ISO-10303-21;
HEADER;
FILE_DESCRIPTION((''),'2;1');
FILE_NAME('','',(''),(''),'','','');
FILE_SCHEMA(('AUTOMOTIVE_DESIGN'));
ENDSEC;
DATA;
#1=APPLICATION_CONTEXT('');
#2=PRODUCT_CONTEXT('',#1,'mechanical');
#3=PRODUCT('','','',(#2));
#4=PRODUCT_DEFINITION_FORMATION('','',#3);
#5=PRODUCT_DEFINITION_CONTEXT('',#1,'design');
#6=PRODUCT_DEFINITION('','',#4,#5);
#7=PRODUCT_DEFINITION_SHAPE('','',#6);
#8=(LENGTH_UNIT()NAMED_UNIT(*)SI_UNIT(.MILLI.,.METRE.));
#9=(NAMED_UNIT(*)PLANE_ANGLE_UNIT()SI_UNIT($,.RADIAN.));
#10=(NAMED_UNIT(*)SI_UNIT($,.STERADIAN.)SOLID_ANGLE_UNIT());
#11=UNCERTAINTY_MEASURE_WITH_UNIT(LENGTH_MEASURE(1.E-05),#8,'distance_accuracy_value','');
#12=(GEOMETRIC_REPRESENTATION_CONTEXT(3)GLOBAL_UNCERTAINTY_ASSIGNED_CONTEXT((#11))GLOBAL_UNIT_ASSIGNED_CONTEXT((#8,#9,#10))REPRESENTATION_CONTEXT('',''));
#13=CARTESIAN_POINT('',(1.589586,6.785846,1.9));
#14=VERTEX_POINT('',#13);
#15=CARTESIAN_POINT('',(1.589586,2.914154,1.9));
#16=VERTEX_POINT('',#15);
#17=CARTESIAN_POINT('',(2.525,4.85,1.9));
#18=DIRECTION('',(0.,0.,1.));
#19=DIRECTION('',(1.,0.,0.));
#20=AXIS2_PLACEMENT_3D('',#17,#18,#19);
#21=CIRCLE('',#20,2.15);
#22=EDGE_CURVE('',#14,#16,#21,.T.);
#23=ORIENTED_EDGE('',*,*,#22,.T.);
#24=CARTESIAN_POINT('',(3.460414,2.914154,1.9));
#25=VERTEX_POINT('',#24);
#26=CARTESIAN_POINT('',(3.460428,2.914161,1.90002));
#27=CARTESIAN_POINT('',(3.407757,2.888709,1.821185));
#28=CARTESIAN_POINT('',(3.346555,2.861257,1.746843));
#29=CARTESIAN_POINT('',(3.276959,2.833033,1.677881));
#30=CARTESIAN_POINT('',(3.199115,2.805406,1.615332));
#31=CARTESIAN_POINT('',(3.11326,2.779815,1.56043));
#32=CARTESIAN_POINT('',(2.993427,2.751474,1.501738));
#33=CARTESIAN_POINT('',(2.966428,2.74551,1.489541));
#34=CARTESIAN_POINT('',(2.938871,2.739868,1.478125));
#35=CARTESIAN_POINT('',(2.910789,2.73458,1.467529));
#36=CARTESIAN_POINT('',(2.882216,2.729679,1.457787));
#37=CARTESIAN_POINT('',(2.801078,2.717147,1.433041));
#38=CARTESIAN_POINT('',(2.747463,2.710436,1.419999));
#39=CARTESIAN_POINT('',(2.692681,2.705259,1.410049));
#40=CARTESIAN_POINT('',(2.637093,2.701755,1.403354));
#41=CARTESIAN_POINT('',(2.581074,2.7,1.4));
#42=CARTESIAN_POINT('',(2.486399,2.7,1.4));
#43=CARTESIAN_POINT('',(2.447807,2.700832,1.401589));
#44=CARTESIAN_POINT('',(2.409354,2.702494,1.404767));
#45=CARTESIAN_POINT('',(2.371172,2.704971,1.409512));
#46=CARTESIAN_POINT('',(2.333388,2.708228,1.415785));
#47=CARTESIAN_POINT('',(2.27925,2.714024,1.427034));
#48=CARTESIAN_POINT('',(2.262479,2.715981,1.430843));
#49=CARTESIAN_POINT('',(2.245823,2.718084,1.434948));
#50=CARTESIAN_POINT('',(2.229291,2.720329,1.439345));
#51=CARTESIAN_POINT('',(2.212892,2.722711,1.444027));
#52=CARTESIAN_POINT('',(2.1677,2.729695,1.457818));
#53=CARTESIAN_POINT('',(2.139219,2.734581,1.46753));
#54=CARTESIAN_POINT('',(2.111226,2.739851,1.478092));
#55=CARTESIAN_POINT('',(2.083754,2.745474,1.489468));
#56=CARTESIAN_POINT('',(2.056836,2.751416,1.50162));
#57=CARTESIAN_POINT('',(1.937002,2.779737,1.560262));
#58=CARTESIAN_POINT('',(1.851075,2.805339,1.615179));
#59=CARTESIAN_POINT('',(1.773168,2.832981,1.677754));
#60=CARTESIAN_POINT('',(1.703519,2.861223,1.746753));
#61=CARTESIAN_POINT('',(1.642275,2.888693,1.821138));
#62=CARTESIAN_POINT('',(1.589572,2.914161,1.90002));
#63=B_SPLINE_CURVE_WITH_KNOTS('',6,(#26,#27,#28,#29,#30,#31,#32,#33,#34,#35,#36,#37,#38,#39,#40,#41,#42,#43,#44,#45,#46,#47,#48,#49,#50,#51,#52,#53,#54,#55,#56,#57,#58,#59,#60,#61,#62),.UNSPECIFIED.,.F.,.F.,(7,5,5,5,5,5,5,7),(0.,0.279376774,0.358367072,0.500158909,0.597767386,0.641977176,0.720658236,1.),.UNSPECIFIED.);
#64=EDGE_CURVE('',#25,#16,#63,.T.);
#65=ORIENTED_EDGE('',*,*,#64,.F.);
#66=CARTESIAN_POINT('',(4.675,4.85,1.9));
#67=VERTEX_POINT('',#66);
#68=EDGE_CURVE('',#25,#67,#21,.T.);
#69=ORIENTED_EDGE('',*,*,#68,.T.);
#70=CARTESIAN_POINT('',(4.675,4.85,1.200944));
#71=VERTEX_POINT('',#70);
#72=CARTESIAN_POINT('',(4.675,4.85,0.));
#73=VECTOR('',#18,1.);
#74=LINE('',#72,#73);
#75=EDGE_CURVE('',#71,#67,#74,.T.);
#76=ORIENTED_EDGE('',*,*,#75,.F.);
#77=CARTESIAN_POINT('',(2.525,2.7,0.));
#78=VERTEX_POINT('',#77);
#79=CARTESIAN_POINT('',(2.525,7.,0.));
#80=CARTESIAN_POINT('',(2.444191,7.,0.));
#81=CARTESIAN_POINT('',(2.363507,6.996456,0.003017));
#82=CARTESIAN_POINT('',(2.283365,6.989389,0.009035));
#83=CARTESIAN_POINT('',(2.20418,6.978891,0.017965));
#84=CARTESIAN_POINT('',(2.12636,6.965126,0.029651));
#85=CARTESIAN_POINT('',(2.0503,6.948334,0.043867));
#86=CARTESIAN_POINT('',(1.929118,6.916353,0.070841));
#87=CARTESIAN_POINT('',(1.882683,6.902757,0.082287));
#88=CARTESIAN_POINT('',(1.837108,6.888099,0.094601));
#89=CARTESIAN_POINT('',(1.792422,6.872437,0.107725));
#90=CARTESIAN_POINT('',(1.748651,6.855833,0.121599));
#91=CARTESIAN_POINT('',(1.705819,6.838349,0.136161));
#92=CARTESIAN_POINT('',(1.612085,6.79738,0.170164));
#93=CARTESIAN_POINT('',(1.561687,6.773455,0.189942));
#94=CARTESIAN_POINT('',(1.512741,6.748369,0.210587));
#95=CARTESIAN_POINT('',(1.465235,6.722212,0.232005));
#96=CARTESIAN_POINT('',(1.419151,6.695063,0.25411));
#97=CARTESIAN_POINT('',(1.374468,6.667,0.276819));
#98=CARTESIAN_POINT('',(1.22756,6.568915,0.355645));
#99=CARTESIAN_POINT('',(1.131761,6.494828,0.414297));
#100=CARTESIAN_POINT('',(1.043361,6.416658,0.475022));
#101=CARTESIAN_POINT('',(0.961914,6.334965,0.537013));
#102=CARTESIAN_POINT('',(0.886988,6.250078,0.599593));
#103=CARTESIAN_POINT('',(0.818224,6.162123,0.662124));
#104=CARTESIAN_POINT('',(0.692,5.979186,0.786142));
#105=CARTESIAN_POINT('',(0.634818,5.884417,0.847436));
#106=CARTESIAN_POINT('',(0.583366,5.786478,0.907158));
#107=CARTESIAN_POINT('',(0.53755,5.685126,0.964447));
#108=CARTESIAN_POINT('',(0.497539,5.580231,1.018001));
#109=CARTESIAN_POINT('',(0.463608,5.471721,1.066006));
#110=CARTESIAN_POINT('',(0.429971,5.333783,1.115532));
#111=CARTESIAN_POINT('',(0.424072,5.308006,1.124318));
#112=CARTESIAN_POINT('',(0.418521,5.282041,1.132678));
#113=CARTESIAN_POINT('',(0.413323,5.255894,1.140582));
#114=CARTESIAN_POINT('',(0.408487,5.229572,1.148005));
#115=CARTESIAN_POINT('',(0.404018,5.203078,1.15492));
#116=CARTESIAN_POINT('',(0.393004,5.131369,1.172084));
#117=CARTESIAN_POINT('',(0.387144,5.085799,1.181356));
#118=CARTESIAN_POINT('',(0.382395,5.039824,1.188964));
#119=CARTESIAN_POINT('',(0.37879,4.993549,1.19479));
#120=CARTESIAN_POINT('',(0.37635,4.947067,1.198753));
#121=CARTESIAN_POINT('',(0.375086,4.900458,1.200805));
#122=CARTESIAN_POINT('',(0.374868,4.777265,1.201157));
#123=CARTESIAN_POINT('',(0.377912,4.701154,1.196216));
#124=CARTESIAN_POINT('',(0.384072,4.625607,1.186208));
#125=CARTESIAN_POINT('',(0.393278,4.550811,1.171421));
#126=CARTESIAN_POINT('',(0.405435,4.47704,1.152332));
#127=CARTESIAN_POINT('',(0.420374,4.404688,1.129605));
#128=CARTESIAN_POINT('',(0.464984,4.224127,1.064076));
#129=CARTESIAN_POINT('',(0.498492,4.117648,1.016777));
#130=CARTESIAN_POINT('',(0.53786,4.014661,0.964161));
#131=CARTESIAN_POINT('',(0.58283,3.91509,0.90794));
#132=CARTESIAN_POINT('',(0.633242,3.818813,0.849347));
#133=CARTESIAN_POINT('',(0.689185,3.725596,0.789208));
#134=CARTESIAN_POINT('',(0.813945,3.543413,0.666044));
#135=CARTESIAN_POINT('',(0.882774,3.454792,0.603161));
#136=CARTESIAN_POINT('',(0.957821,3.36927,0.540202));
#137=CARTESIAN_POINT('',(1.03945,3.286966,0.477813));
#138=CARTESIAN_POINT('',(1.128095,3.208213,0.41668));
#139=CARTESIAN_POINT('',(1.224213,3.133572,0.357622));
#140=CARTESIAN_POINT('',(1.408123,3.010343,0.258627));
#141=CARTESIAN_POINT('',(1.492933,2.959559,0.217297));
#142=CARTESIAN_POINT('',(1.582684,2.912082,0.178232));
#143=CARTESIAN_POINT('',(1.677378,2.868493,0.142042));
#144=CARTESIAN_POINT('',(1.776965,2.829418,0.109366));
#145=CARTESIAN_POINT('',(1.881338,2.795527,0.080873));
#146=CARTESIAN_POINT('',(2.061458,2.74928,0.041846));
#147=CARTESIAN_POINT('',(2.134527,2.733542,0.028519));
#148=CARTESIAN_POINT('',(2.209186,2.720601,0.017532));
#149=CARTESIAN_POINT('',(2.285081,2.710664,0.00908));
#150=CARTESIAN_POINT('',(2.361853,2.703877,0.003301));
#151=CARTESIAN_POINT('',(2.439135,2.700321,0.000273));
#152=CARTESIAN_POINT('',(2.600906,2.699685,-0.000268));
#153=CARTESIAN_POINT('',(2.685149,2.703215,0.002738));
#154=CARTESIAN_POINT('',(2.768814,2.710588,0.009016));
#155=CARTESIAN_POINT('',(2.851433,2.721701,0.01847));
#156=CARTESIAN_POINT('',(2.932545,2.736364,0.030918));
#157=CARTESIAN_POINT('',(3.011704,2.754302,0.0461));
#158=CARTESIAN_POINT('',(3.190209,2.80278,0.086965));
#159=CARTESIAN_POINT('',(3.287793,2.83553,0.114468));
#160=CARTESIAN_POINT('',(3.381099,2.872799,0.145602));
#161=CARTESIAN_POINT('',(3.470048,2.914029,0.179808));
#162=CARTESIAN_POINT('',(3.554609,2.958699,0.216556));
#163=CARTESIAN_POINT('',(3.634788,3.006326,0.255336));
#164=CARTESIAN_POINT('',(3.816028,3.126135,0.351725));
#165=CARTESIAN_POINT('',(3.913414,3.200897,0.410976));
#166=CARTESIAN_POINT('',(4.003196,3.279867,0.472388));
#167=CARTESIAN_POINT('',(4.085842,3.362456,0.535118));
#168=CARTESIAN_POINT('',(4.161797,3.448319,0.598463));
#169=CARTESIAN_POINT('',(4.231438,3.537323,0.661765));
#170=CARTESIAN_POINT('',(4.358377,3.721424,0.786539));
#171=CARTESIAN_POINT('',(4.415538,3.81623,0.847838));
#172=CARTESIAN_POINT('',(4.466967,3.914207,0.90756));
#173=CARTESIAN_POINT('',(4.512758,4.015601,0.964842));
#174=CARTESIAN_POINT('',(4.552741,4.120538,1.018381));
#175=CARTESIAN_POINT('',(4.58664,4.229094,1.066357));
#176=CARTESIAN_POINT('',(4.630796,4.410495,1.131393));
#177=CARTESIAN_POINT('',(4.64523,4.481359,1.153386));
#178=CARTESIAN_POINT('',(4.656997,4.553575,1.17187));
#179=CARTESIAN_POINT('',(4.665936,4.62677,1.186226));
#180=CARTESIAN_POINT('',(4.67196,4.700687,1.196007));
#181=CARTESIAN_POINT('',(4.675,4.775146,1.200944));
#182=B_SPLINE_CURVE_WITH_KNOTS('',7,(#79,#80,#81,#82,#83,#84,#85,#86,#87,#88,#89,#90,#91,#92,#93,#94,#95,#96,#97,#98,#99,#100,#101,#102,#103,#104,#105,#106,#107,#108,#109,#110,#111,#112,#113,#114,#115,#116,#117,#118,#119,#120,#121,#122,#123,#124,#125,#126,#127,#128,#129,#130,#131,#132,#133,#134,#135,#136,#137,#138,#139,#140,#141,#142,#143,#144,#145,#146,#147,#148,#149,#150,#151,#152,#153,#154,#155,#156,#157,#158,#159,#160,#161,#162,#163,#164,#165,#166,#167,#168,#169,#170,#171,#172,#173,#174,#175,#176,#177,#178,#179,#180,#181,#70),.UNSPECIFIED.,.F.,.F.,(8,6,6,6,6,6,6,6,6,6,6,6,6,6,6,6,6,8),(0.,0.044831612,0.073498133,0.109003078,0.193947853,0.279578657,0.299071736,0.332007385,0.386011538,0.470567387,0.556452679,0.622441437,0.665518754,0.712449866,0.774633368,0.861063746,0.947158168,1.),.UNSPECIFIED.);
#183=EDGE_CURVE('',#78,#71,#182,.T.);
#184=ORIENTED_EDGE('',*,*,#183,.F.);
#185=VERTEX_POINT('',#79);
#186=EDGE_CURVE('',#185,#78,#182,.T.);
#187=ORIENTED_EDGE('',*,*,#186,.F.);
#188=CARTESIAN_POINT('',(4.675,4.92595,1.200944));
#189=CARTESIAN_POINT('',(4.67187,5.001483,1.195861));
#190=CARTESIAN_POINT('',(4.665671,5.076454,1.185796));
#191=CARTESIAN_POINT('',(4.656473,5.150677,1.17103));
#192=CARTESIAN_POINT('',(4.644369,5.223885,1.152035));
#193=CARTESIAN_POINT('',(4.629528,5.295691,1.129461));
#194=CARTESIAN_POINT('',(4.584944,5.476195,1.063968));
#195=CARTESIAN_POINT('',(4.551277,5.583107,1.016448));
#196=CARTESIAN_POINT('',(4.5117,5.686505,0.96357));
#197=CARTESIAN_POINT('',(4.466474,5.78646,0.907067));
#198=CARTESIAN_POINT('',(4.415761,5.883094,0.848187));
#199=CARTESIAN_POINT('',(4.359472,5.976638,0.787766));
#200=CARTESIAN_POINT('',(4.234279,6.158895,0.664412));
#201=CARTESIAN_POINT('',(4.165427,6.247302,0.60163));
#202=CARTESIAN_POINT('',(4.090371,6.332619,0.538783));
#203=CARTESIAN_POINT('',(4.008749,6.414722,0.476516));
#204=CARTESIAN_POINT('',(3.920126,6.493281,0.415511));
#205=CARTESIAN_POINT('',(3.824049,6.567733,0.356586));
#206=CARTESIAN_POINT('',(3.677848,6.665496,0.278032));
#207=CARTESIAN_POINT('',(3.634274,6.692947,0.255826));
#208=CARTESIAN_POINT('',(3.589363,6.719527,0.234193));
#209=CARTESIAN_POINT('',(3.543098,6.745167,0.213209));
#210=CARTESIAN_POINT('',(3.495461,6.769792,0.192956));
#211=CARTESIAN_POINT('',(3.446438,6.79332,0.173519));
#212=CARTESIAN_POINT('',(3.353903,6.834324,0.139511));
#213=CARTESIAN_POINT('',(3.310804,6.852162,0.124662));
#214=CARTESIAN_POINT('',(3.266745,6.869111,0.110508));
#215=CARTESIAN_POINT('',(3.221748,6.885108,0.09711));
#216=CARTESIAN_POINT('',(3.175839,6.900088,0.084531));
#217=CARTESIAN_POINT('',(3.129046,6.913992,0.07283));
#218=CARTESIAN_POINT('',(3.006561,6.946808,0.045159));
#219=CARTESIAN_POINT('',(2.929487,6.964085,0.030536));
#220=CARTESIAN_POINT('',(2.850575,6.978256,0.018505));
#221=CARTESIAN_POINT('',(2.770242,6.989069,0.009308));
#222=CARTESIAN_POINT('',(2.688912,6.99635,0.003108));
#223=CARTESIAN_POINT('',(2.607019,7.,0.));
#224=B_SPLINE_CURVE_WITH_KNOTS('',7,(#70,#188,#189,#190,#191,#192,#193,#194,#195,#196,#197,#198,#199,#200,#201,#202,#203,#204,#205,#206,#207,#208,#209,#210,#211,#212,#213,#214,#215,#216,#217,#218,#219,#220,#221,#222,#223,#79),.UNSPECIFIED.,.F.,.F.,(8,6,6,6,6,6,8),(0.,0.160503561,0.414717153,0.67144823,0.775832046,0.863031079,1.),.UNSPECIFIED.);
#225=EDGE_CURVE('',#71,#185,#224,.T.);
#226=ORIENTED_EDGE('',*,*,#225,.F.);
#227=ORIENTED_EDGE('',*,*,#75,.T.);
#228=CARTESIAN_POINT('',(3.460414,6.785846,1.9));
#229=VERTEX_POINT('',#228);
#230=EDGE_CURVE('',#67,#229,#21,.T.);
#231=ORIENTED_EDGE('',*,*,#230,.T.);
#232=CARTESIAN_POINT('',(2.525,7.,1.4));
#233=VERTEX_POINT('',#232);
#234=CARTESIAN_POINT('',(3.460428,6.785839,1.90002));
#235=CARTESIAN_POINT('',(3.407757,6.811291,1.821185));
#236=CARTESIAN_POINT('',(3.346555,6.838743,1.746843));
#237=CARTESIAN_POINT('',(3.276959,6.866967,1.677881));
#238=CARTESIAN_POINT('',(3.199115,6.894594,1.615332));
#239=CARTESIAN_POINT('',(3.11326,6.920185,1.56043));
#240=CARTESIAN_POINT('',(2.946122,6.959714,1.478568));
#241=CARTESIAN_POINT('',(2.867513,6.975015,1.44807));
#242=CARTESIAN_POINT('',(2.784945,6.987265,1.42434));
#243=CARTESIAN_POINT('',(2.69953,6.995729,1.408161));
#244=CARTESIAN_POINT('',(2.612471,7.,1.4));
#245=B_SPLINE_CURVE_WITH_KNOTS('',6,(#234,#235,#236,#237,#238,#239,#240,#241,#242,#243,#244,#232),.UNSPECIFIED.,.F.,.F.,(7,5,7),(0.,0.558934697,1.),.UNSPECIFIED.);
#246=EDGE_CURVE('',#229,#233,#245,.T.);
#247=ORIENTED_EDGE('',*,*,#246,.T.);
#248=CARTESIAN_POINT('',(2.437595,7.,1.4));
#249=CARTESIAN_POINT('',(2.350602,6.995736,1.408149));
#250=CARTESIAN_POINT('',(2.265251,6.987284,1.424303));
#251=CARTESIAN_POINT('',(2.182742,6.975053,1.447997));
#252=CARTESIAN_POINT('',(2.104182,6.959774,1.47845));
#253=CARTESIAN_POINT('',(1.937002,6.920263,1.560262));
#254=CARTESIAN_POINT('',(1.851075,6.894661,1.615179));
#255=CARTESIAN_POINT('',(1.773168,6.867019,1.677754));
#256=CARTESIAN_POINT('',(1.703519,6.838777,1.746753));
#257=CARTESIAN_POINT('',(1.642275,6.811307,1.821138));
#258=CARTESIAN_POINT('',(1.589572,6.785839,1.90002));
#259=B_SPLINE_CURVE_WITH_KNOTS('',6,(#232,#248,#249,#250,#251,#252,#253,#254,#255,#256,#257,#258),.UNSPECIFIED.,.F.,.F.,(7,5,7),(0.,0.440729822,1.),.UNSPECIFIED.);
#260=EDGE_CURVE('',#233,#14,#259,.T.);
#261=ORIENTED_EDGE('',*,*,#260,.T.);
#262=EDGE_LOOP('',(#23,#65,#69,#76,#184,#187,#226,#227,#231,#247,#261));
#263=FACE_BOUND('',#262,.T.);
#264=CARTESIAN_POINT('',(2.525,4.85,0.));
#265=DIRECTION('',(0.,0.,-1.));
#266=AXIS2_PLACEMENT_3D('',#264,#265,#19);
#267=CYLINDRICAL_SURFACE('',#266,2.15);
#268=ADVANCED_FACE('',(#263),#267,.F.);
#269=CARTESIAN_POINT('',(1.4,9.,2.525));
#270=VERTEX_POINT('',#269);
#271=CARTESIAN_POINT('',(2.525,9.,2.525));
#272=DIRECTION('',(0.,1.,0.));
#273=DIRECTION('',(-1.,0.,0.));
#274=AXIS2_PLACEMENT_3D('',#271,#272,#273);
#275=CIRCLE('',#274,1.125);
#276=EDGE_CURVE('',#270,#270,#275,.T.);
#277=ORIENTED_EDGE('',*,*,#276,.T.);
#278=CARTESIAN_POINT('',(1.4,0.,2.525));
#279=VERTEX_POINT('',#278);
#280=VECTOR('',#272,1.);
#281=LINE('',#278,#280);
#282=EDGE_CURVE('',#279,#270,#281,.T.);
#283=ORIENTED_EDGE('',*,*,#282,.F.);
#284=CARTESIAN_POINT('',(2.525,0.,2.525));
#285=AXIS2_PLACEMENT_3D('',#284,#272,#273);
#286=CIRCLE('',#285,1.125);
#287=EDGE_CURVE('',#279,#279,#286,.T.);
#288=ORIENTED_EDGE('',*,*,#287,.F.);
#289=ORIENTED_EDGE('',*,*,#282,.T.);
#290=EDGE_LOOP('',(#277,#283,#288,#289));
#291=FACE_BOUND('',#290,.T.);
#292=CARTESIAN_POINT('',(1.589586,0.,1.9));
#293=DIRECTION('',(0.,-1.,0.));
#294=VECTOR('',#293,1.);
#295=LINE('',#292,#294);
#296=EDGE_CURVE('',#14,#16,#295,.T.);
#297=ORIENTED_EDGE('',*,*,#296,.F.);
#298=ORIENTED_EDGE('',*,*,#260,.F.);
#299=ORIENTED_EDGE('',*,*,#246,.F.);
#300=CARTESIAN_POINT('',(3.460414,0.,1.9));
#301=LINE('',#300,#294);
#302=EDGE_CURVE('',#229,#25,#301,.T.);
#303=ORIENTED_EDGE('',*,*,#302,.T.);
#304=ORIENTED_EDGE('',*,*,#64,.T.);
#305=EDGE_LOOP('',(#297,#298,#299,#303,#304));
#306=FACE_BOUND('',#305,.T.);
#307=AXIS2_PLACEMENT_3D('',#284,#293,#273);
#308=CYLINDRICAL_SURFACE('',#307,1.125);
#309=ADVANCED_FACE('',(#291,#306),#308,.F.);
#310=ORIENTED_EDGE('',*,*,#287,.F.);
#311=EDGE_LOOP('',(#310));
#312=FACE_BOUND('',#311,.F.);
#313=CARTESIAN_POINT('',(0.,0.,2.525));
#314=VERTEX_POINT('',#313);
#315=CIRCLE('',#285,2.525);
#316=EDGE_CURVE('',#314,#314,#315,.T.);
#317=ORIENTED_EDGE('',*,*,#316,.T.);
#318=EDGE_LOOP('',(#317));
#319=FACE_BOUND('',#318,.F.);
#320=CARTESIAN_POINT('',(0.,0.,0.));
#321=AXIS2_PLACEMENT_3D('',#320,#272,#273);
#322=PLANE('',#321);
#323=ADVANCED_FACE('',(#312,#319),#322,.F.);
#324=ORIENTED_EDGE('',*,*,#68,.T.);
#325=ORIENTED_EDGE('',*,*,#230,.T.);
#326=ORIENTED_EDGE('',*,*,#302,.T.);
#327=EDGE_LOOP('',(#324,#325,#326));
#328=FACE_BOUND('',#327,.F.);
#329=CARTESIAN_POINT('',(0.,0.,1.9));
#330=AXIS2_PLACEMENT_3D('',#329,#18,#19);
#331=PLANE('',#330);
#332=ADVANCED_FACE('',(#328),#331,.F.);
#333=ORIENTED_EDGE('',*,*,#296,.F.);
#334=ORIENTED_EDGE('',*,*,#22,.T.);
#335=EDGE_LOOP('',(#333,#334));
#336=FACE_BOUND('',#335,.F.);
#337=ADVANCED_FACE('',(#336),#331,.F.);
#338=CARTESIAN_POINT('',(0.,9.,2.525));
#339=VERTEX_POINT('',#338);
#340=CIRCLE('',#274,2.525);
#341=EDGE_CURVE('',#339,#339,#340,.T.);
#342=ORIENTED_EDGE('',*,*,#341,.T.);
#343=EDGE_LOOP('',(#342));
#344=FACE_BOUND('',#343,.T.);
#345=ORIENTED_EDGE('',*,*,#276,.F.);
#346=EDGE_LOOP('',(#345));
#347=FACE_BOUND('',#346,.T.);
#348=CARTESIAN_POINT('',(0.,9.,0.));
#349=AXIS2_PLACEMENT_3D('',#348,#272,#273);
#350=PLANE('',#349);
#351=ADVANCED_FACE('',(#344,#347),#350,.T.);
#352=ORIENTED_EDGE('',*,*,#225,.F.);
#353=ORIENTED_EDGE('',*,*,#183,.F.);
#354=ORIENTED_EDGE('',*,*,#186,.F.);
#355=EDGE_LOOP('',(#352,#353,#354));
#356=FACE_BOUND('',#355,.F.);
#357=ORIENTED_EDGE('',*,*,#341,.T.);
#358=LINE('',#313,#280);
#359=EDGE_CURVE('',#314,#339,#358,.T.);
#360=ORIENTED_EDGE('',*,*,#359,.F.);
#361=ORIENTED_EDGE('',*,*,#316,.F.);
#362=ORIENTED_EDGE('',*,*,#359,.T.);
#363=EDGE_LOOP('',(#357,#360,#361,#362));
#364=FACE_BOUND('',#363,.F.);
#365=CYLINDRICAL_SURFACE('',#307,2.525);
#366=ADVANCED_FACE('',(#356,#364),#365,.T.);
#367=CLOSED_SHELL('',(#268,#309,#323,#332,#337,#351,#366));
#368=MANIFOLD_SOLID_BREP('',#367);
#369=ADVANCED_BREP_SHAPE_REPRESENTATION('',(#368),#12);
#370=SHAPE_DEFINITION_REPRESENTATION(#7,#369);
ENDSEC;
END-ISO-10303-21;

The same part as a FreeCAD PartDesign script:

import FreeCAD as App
import Part
import Sketcher

doc = App.newDocument("Part")
body = doc.addObject("PartDesign::Body", "Body")

# Sketch on XZ plane
sketch1 = body.newObject("Sketcher::SketchObject", "Sketch")
sketch1.AttachmentSupport = (doc.getObject("XZ_Plane"), [""])
sketch1.MapMode = "FlatFace"
sketch1.addGeometry(Part.Circle(App.Vector(2.525, 2.525, 0), App.Vector(0, 0, 1), 2.525), False)
sketch1.addGeometry(Part.Circle(App.Vector(2.525, 2.525, 0), App.Vector(0, 0, 1), 1.125), False)
sketch1.addConstraint(Sketcher.Constraint("Coincident", 1, 3, 0, 3))
sketch1.addConstraint(Sketcher.Constraint("Diameter", 0, 5.05))
sketch1.addConstraint(Sketcher.Constraint("Diameter", 1, 2.25))
sketch1.addConstraint(Sketcher.Constraint("DistanceX", -1, 1, 0, 3, 2.525))
sketch1.addConstraint(Sketcher.Constraint("DistanceY", -1, 1, 0, 3, 2.525))
pad1 = body.newObject("PartDesign::Pad", "Pad")
pad1.Profile = sketch1
pad1.Length = 9
pad1.Reversed = True

# Sketch on XY plane
sketch2 = body.newObject("Sketcher::SketchObject", "Sketch001")
sketch2.AttachmentSupport = (doc.getObject("XY_Plane"), [""])
sketch2.MapMode = "FlatFace"
sketch2.addGeometry(Part.Circle(App.Vector(2.525, 4.85, 0), App.Vector(0, 0, 1), 2.15), False)
sketch2.addConstraint(Sketcher.Constraint("Diameter", 0, 4.3))
sketch2.addConstraint(Sketcher.Constraint("DistanceX", -1, 1, 0, 3, 2.525))
sketch2.addConstraint(Sketcher.Constraint("DistanceY", -1, 1, 0, 3, 4.85))
pocket1 = body.newObject("PartDesign::Pocket", "Pocket")
pocket1.Profile = sketch2
pocket1.Length = 1.9
pocket1.Reversed = True

doc.recompute()
